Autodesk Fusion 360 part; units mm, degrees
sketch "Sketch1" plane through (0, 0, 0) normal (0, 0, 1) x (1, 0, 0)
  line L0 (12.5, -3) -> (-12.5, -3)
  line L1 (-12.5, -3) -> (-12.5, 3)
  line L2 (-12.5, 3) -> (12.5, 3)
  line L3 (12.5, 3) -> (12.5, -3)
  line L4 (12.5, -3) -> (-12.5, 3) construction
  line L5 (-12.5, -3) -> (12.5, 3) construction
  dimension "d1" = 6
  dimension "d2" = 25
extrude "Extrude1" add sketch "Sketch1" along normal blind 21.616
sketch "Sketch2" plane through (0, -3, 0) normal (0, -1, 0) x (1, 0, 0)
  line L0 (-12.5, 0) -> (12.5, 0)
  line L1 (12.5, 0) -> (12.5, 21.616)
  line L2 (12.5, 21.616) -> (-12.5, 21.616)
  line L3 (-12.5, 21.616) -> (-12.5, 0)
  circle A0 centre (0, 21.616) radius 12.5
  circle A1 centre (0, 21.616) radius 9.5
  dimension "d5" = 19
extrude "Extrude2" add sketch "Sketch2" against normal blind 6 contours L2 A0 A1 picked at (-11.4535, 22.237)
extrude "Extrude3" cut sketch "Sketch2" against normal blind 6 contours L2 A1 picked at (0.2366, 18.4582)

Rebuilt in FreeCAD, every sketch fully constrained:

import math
import FreeCAD as App
import Part
import Sketcher
Q = App.Units.Quantity

doc = App.newDocument("Part")
body = doc.addObject("PartDesign::Body", "Body")

# Sketch on XY plane
sketch1 = body.newObject("Sketcher::SketchObject", "Sketch")
sketch1.AttachmentSupport = (doc.getObject("XY_Plane"), [""])
sketch1.MapMode = "FlatFace"
sketch1.addGeometry([
    Part.LineSegment(App.Vector(-12, -3, 0), App.Vector(12, -3, 0)),
    Part.LineSegment(App.Vector(12, -3, 0), App.Vector(12, 3, 0)),
    Part.LineSegment(App.Vector(12, 3, 0), App.Vector(-12, 3, 0)),
    Part.LineSegment(App.Vector(-12, 3, 0), App.Vector(-12, -3, 0)),
], False)
sketch1.addConstraint([
    Sketcher.Constraint("Coincident", 0, 2, 1, 1),
    Sketcher.Constraint("Coincident", 1, 2, 2, 1),
    Sketcher.Constraint("Coincident", 2, 2, 3, 1),
    Sketcher.Constraint("Coincident", 3, 2, 0, 1),
    Sketcher.Constraint("Horizontal", 0),
    Sketcher.Constraint("Vertical", 1),
    Sketcher.Constraint("Horizontal", 2),
    Sketcher.Constraint("Vertical", 3),
    Sketcher.Constraint("Symmetric", 0, 2, 2, 2, -1, 1),
    Sketcher.Constraint("DistanceX", 0, 1, 0, 2, Q("25 mm")),
    Sketcher.Constraint("DistanceY", 1, 1, 1, 2, Q("6 mm")),
])
pad1 = body.newObject("PartDesign::Pad", "Pad")
pad1.Profile = sketch1
pad1.Length = 21.616

# Sketch on XZ plane
sketch2 = body.newObject("Sketcher::SketchObject", "Sketch001")
sketch2.AttachmentSupport = (doc.getObject("XZ_Plane"), [""])
sketch2.MapMode = "FlatFace"
sketch2.AttachmentOffset = App.Placement(App.Vector(0, 0, 3), App.Rotation())
sketch2.addGeometry([
    Part.ArcOfCircle(Part.Circle(App.Vector(0, 21.6, 0), App.Vector(0, 0, 1), 12.5), math.radians(0), math.radians(180)),
    Part.LineSegment(App.Vector(-12.5, 21.6, 0), App.Vector(-9.5, 21.6, 0)),
    Part.ArcOfCircle(Part.Circle(App.Vector(0, 21.6, 0), App.Vector(0, 0, 1), 9.5), math.radians(0), math.radians(180)),
    Part.LineSegment(App.Vector(9.5, 21.6, 0), App.Vector(12.5, 21.6, 0)),
], False)
sketch2.addConstraint([
    Sketcher.Constraint("Coincident", 0, 2, 1, 1),
    Sketcher.Constraint("Coincident", 1, 2, 2, 2),
    Sketcher.Constraint("Coincident", 2, 1, 3, 1),
    Sketcher.Constraint("Coincident", 3, 2, 0, 1),
    Sketcher.Constraint("Horizontal", 1),
    Sketcher.Constraint("Horizontal", 3),
    Sketcher.Constraint("Coincident", 2, 3, 0, 3),
    Sketcher.Constraint("Symmetric", 1, 2, 2, 1, -2),
    Sketcher.Constraint("Horizontal", 2, 3, 0, 2),
    Sketcher.Constraint("Radius", 2, Q("9.5 mm")),
    Sketcher.Constraint("Radius", 0, Q("12.5 mm")),
    Sketcher.Constraint("DistanceY", -1, 1, 0, 3, Q("21.616 mm")),
])
pad2 = body.newObject("PartDesign::Pad", "Pad001")
pad2.Profile = sketch2
pad2.Length = 6
pad2.Reversed = True

# Sketch on XZ plane
sketch3 = body.newObject("Sketcher::SketchObject", "Sketch002")
sketch3.AttachmentSupport = (doc.getObject("XZ_Plane"), [""])
sketch3.MapMode = "FlatFace"
sketch3.AttachmentOffset = App.Placement(App.Vector(0, 0, 3), App.Rotation())
sketch3.addGeometry([
    Part.LineSegment(App.Vector(10, 22, 0), App.Vector(-10, 22, 0)),
    Part.ArcOfCircle(Part.Circle(App.Vector(0, 22, 0), App.Vector(0, 0, 1), 10), math.radians(180), math.radians(360)),
], False)
sketch3.addConstraint([
    Sketcher.Constraint("Coincident", 0, 1, 1, 2),
    Sketcher.Constraint("Coincident", 1, 1, 0, 2),
    Sketcher.Constraint("Horizontal", 0),
    Sketcher.Constraint("PointOnObject", 1, 3, -2),
    Sketcher.Constraint("Horizontal", 1, 3, 0, 1),
    Sketcher.Constraint("Radius", 1, Q("9.5 mm")),
    Sketcher.Constraint("DistanceY", -1, 1, 1, 3, Q("21.616 mm")),
])
pocket1 = body.newObject("PartDesign::Pocket", "Pocket")
pocket1.Profile = sketch3
pocket1.Length = 6

doc.recompute()
